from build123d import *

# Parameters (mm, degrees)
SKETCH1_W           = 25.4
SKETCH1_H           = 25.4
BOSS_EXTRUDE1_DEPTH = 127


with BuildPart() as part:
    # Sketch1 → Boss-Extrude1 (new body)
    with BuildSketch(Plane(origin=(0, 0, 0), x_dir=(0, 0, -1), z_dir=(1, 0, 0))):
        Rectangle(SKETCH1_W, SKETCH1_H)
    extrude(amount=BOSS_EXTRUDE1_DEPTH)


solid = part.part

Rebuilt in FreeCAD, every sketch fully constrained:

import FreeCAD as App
import Part
import Sketcher

V = App.Vector
Q = App.Units.Quantity

doc = App.newDocument("Part")
body = doc.addObject("PartDesign::Body", "Body")

sketch1 = body.newObject("Sketcher::SketchObject", "Sketch")
sketch1.AttachmentSupport = (doc.getObject("YZ_Plane"), [""])
sketch1.MapMode = "FlatFace"
sketch1.addGeometry(Part.LineSegment(V(13, 13, 0), V(-13, 13, 0)), False)
sketch1.addGeometry(Part.LineSegment(V(-13, 13, 0), V(-13, -13, 0)), False)
sketch1.addGeometry(Part.LineSegment(V(-13, -13, 0), V(13, -13, 0)), False)
sketch1.addGeometry(Part.LineSegment(V(13, -13, 0), V(13, 13, 0)), False)
sketch1.addConstraint(Sketcher.Constraint("Coincident", 0, 2, 1, 1))
sketch1.addConstraint(Sketcher.Constraint("Coincident", 1, 2, 2, 1))
sketch1.addConstraint(Sketcher.Constraint("Coincident", 2, 2, 3, 1))
sketch1.addConstraint(Sketcher.Constraint("Coincident", 3, 2, 0, 1))
sketch1.addConstraint(Sketcher.Constraint("Horizontal", 0))
sketch1.addConstraint(Sketcher.Constraint("Vertical", 1))
sketch1.addConstraint(Sketcher.Constraint("Horizontal", 2))
sketch1.addConstraint(Sketcher.Constraint("Vertical", 3))
sketch1.addConstraint(Sketcher.Constraint("Symmetric", 0, 2, 2, 2, -1, 1))
sketch1.addConstraint(Sketcher.Constraint("Equal", 2, 1))
sketch1.addConstraint(Sketcher.Constraint("DistanceX", 0, 2, 0, 1, Q("1 in")))
pad1 = body.newObject("PartDesign::Pad", "Pad")
pad1.Profile = sketch1
pad1.Length = Q("5 in")

doc.recompute()
